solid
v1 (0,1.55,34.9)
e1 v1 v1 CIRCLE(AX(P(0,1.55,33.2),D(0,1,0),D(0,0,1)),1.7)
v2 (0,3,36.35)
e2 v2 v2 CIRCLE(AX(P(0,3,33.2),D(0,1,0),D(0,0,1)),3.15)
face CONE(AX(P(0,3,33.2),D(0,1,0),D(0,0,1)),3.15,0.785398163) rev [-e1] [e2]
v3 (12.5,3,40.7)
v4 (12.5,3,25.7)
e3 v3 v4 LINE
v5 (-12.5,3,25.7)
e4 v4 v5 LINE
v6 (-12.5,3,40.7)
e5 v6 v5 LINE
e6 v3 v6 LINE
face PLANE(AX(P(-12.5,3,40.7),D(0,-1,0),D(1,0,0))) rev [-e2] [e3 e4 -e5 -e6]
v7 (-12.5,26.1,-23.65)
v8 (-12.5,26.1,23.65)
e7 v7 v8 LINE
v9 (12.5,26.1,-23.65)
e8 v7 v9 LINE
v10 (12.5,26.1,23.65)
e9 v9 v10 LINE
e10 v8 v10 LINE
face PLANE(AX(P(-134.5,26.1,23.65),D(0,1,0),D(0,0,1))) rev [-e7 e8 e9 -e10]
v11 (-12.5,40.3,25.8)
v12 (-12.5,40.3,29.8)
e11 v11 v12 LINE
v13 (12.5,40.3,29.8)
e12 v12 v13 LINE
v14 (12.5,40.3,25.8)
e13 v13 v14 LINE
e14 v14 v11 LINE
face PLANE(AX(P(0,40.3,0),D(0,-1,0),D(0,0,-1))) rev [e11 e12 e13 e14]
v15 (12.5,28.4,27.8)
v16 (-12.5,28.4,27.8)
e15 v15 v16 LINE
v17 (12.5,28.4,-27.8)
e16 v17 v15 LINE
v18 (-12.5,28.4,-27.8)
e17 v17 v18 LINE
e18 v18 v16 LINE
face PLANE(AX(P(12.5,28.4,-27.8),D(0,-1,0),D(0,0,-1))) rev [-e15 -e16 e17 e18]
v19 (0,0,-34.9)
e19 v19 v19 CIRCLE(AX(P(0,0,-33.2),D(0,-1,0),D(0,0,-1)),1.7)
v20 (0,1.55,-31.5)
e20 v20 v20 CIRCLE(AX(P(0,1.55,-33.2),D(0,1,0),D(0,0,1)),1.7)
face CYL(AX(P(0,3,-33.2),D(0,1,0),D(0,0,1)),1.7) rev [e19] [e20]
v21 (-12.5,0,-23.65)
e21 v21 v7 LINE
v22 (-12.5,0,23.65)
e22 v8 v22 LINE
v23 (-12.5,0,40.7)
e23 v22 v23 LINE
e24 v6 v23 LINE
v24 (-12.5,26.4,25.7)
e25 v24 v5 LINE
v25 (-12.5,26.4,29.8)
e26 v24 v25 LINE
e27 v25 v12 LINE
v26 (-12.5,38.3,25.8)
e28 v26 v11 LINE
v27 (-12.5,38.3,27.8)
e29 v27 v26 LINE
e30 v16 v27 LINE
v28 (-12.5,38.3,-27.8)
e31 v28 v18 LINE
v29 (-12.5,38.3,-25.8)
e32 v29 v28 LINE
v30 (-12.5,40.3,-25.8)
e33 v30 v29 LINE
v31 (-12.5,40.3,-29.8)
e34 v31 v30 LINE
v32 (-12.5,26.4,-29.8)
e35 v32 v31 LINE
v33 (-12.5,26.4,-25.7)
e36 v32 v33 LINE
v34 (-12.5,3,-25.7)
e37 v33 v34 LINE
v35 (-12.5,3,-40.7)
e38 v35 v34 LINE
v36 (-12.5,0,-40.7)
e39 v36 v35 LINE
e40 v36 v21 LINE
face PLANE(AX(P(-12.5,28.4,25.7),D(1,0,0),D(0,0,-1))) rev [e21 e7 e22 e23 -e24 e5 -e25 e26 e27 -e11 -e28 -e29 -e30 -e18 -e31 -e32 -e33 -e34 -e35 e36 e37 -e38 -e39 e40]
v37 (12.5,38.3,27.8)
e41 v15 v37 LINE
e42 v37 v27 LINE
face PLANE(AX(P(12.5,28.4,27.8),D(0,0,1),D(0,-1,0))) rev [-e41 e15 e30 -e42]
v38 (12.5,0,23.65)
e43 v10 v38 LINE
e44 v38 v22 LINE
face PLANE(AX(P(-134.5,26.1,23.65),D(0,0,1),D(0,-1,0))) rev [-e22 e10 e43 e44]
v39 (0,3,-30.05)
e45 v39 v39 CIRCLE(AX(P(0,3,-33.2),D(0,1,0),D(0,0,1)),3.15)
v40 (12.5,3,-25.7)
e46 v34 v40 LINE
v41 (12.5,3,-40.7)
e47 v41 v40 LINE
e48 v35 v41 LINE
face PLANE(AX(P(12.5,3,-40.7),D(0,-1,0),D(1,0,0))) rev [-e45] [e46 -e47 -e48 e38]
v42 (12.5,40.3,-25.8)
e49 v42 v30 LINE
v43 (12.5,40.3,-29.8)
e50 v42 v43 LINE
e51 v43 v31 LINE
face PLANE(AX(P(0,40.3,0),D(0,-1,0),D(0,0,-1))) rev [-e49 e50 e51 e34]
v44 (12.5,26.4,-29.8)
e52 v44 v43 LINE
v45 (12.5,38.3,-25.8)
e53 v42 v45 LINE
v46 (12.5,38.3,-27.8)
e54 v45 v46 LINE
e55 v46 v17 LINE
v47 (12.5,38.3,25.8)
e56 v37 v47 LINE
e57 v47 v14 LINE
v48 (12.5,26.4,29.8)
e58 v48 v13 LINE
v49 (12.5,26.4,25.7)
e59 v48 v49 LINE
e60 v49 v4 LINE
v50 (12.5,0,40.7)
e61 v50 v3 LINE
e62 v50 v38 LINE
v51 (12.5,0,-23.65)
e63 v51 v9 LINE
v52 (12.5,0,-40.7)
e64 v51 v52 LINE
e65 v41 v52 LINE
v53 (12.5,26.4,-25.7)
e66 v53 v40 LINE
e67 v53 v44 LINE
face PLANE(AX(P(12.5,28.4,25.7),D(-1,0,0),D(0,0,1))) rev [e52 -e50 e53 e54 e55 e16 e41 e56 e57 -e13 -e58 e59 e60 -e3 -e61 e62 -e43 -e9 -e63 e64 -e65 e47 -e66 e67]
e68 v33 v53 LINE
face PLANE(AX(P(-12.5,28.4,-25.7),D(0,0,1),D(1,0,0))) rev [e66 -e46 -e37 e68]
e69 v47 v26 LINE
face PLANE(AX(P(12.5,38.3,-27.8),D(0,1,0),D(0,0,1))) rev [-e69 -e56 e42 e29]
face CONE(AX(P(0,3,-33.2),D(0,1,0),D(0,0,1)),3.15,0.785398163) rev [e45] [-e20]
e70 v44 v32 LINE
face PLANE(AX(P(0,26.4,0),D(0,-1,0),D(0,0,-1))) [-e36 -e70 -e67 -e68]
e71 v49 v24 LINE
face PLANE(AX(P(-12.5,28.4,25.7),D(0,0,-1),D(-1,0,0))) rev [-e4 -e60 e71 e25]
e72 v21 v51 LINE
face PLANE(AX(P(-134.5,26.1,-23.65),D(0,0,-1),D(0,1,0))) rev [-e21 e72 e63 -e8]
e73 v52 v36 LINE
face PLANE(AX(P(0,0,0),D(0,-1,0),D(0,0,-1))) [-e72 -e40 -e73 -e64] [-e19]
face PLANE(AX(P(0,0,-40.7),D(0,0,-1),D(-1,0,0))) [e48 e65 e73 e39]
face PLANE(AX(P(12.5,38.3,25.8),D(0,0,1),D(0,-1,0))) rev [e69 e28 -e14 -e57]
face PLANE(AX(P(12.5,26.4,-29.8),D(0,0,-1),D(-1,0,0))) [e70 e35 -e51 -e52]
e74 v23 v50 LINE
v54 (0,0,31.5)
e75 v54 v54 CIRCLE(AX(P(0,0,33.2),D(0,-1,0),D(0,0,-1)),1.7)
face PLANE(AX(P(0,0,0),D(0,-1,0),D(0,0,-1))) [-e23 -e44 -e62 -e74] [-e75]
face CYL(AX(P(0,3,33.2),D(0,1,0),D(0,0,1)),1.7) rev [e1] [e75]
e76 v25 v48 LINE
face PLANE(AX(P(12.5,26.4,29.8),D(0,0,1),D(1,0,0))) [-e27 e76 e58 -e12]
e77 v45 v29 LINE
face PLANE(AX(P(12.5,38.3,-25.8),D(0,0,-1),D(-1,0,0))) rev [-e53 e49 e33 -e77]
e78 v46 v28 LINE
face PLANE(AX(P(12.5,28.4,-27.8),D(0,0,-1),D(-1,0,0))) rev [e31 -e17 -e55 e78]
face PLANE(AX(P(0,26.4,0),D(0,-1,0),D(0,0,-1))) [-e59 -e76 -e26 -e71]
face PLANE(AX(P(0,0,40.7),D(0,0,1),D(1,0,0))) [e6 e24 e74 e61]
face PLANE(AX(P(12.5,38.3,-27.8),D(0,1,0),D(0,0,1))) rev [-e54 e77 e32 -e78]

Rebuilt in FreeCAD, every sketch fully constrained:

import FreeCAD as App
import Part
import Sketcher

V = App.Vector
Q = App.Units.Quantity


def add_polygon(sketch, points):
    """Adds a closed chain of lines whose ends are joined by coincident constraints."""
    first, n = sketch.GeometryCount, len(points)
    for a, b in zip(points, points[1:] + points[:1]):
        sketch.addGeometry(Part.LineSegment(App.Vector(*a, 0), App.Vector(*b, 0)), False)
    for i in range(n):
        sketch.addConstraint(Sketcher.Constraint("Coincident", first + i, 2, first + (i + 1) % n, 1))

doc = App.newDocument("Part")
body = doc.addObject("PartDesign::Body", "Body")

sketch1 = body.newObject("Sketcher::SketchObject", "Sketch")
sketch1.AttachmentSupport = (doc.getObject("XZ_Plane"), [""])
sketch1.MapMode = "FlatFace"
add_polygon(sketch1, [(-12, -26), (-12, 26), (12, 26), (12, -26)])
sketch1.addConstraint([
    Sketcher.Constraint("Vertical", 0),
    Sketcher.Constraint("Horizontal", 1),
    Sketcher.Constraint("Vertical", 2),
    Sketcher.Constraint("Horizontal", 3),
    Sketcher.Constraint("Symmetric", 0, 2, 2, 2, -1, 1),
    Sketcher.Constraint("DistanceX", 1, 1, 1, 2, Q("25 mm")),
    Sketcher.Constraint("DistanceY", 0, 1, 0, 2, Q("51.4 mm")),
])
pad1 = body.newObject("PartDesign::Pad", "Pad")
pad1.Profile = sketch1
pad1.Length = 28.4
pad1.Reversed = True

sketch2 = body.newObject("Sketcher::SketchObject", "Sketch001")
sketch2.AttachmentSupport = (doc.getObject("YZ_Plane"), [""])
sketch2.MapMode = "FlatFace"
sketch2.AttachmentOffset = App.Placement(V(0, 0, 12.5), App.Rotation())
add_polygon(sketch2, [(26, 24), (-1, 24), (-1, -24), (26, -24)])
sketch2.addConstraint([
    Sketcher.Constraint("Horizontal", 0),
    Sketcher.Constraint("Vertical", 1),
    Sketcher.Constraint("Horizontal", 2),
    Sketcher.Constraint("Vertical", 3),
    Sketcher.Constraint("DistanceX", 0, 2, 0, 1, Q("27.1 mm")),
    Sketcher.Constraint("DistanceY", 1, 2, 1, 1, Q("47.3 mm")),
    Sketcher.Constraint("DistanceX", 0, 2, -1, 1, Q("1 mm")),
    Sketcher.Constraint("DistanceY", -1, 1, 0, 2, Q("23.65 mm")),
])
pocket1 = body.newObject("PartDesign::Pocket", "Pocket")
pocket1.Profile = sketch2
pocket1.Length = 147

sketch3 = body.newObject("Sketcher::SketchObject", "Sketch002")
sketch3.AttachmentSupport = (doc.getObject("XZ_Plane"), [""])
sketch3.MapMode = "FlatFace"
sketch3.AttachmentOffset = App.Placement(V(0, 0, -28.4), App.Rotation())
add_polygon(sketch3, [(-12, -30), (-12, 30), (12, 30), (12, -30)])
sketch3.addConstraint([
    Sketcher.Constraint("Vertical", 0),
    Sketcher.Constraint("Horizontal", 1),
    Sketcher.Constraint("Vertical", 2),
    Sketcher.Constraint("Horizontal", 3),
    Sketcher.Constraint("Symmetric", 0, 2, 2, 2, -1, 1),
    Sketcher.Constraint("DistanceX", 1, 1, 1, 2, Q("25 mm")),
    Sketcher.Constraint("DistanceY", 0, 1, 0, 2, Q("59.6 mm")),
])
pad2 = body.newObject("PartDesign::Pad", "Pad001")
pad2.Profile = sketch3
pad2.Type = "TwoLengths"
pad2.Length = 11.9
pad2.Length2 = 2
pad2.Reversed = True

sketch4 = body.newObject("Sketcher::SketchObject", "Sketch003")
sketch4.AttachmentSupport = (doc.getObject("YZ_Plane"), [""])
sketch4.MapMode = "FlatFace"
sketch4.AttachmentOffset = App.Placement(V(0, 0, -12.5), App.Rotation())
add_polygon(sketch4, [(38, -28), (28, -28), (28, 28), (38, 28)])
sketch4.addConstraint([
    Sketcher.Constraint("Horizontal", 0),
    Sketcher.Constraint("Vertical", 1),
    Sketcher.Constraint("Horizontal", 2),
    Sketcher.Constraint("Vertical", 3),
    Sketcher.Constraint("DistanceX", 0, 2, 0, 1, Q("9.9 mm")),
    Sketcher.Constraint("DistanceY", 1, 1, 1, 2, Q("55.6 mm")),
    Sketcher.Constraint("DistanceX", -1, 1, 0, 2, Q("28.4 mm")),
    Sketcher.Constraint("DistanceY", 0, 2, -1, 1, Q("27.8 mm")),
])
pocket2 = body.newObject("PartDesign::Pocket", "Pocket001")
pocket2.Profile = sketch4
pocket2.Type = "ThroughAll"
pocket2.Reversed = True

sketch5 = body.newObject("Sketcher::SketchObject", "Sketch004")
sketch5.AttachmentSupport = (doc.getObject("YZ_Plane"), [""])
sketch5.MapMode = "FlatFace"
sketch5.AttachmentOffset = App.Placement(V(0, 0, -12.5), App.Rotation())
add_polygon(sketch5, [(40.3, -25.8), (38.3, -25.8), (38.3, 25.8), (40.3, 25.8)])
sketch5.addConstraint([
    Sketcher.Constraint("Horizontal", 0),
    Sketcher.Constraint("Vertical", 1),
    Sketcher.Constraint("Horizontal", 2),
    Sketcher.Constraint("Vertical", 3),
    Sketcher.Constraint("DistanceX", 0, 2, 0, 1, Q("2 mm")),
    Sketcher.Constraint("DistanceY", 1, 1, 1, 2, Q("51.6 mm")),
    Sketcher.Constraint("DistanceX", -1, 1, 0, 2, Q("38.3 mm")),
    Sketcher.Constraint("DistanceY", 0, 2, -1, 1, Q("25.8 mm")),
])
pocket3 = body.newObject("PartDesign::Pocket", "Pocket002")
pocket3.Profile = sketch5
pocket3.Type = "ThroughAll"
pocket3.Reversed = True

sketch6 = body.newObject("Sketcher::SketchObject", "Sketch005")
sketch6.AttachmentSupport = (doc.getObject("XY_Plane"), [""])
sketch6.MapMode = "FlatFace"
sketch6.AttachmentOffset = App.Placement(V(0, 0, -25.7), App.Rotation())
add_polygon(sketch6, [(12.5, 3), (12.5, 0), (-12.5, 0), (-12.5, 3)])
sketch6.addConstraint([
    Sketcher.Constraint("Vertical", 0),
    Sketcher.Constraint("Horizontal", 1),
    Sketcher.Constraint("Vertical", 2),
    Sketcher.Constraint("Horizontal", 3),
    Sketcher.Constraint("Symmetric", 0, 2, 1, 2, -1, 1),
    Sketcher.Constraint("DistanceX", 1, 2, 1, 1, Q("25 mm")),
    Sketcher.Constraint("DistanceY", 0, 2, 0, 1, Q("3 mm")),
])
pad3 = body.newObject("PartDesign::Pad", "Pad002")
pad3.Profile = sketch6
pad3.Length = 15
pad3.Reversed = True

sketch7 = body.newObject("Sketcher::SketchObject", "Sketch006")
sketch7.AttachmentSupport = (doc.getObject("XY_Plane"), [""])
sketch7.MapMode = "FlatFace"
sketch7.AttachmentOffset = App.Placement(V(0, 0, 25.7), App.Rotation())
add_polygon(sketch7, [(-12.5, 3), (-12.5, 0), (12.5, 0), (12.5, 3)])
sketch7.addConstraint([
    Sketcher.Constraint("Vertical", 0),
    Sketcher.Constraint("Horizontal", 1),
    Sketcher.Constraint("Vertical", 2),
    Sketcher.Constraint("Horizontal", 3),
    Sketcher.Constraint("Symmetric", 0, 2, 1, 2, -1, 1),
    Sketcher.Constraint("DistanceX", 1, 1, 1, 2, Q("25 mm")),
    Sketcher.Constraint("DistanceY", 0, 2, 0, 1, Q("3 mm")),
])
pad4 = body.newObject("PartDesign::Pad", "Pad003")
pad4.Profile = sketch7
pad4.Length = 15

sketch8 = body.newObject("Sketcher::SketchObject", "Sketch007")
sketch8.AttachmentSupport = (doc.getObject("XZ_Plane"), [""])
sketch8.MapMode = "FlatFace"
sketch8.AttachmentOffset = App.Placement(V(0, 0, -3), App.Rotation())
sketch8.addGeometry([
    Part.Circle(V(0, -33.2, 0), V(0, 0, 1), 1.7),
    Part.Circle(V(0, 33.2, 0), V(0, 0, 1), 1.7),
], False)
sketch8.addConstraint([
    Sketcher.Constraint("Equal", 0, 1),
    Sketcher.Constraint("Symmetric", 0, 3, 1, 3, -1, 1),
    Sketcher.Constraint("PointOnObject", 0, 3, -2),
    Sketcher.Constraint("Diameter", 0, Q("3.4 mm")),
    Sketcher.Constraint("DistanceY", 0, 3, -1, 1, Q("33.2 mm")),
])
doc.recompute()
hole = body.newObject("PartDesign::Hole", "Hole")
hole.Profile = sketch8
hole.ThreadType = "None"
hole.Diameter = 3.4
hole.DepthType = "Dimension"
hole.Depth = 10.4
hole.DrillPoint = "Angled"
hole.DrillPointAngle = 118
hole.HoleCutType = "Countersink"
hole.HoleCutDiameter = 6.3
hole.HoleCutCountersinkAngle = 90
hole.Reversed = True

doc.recompute()
